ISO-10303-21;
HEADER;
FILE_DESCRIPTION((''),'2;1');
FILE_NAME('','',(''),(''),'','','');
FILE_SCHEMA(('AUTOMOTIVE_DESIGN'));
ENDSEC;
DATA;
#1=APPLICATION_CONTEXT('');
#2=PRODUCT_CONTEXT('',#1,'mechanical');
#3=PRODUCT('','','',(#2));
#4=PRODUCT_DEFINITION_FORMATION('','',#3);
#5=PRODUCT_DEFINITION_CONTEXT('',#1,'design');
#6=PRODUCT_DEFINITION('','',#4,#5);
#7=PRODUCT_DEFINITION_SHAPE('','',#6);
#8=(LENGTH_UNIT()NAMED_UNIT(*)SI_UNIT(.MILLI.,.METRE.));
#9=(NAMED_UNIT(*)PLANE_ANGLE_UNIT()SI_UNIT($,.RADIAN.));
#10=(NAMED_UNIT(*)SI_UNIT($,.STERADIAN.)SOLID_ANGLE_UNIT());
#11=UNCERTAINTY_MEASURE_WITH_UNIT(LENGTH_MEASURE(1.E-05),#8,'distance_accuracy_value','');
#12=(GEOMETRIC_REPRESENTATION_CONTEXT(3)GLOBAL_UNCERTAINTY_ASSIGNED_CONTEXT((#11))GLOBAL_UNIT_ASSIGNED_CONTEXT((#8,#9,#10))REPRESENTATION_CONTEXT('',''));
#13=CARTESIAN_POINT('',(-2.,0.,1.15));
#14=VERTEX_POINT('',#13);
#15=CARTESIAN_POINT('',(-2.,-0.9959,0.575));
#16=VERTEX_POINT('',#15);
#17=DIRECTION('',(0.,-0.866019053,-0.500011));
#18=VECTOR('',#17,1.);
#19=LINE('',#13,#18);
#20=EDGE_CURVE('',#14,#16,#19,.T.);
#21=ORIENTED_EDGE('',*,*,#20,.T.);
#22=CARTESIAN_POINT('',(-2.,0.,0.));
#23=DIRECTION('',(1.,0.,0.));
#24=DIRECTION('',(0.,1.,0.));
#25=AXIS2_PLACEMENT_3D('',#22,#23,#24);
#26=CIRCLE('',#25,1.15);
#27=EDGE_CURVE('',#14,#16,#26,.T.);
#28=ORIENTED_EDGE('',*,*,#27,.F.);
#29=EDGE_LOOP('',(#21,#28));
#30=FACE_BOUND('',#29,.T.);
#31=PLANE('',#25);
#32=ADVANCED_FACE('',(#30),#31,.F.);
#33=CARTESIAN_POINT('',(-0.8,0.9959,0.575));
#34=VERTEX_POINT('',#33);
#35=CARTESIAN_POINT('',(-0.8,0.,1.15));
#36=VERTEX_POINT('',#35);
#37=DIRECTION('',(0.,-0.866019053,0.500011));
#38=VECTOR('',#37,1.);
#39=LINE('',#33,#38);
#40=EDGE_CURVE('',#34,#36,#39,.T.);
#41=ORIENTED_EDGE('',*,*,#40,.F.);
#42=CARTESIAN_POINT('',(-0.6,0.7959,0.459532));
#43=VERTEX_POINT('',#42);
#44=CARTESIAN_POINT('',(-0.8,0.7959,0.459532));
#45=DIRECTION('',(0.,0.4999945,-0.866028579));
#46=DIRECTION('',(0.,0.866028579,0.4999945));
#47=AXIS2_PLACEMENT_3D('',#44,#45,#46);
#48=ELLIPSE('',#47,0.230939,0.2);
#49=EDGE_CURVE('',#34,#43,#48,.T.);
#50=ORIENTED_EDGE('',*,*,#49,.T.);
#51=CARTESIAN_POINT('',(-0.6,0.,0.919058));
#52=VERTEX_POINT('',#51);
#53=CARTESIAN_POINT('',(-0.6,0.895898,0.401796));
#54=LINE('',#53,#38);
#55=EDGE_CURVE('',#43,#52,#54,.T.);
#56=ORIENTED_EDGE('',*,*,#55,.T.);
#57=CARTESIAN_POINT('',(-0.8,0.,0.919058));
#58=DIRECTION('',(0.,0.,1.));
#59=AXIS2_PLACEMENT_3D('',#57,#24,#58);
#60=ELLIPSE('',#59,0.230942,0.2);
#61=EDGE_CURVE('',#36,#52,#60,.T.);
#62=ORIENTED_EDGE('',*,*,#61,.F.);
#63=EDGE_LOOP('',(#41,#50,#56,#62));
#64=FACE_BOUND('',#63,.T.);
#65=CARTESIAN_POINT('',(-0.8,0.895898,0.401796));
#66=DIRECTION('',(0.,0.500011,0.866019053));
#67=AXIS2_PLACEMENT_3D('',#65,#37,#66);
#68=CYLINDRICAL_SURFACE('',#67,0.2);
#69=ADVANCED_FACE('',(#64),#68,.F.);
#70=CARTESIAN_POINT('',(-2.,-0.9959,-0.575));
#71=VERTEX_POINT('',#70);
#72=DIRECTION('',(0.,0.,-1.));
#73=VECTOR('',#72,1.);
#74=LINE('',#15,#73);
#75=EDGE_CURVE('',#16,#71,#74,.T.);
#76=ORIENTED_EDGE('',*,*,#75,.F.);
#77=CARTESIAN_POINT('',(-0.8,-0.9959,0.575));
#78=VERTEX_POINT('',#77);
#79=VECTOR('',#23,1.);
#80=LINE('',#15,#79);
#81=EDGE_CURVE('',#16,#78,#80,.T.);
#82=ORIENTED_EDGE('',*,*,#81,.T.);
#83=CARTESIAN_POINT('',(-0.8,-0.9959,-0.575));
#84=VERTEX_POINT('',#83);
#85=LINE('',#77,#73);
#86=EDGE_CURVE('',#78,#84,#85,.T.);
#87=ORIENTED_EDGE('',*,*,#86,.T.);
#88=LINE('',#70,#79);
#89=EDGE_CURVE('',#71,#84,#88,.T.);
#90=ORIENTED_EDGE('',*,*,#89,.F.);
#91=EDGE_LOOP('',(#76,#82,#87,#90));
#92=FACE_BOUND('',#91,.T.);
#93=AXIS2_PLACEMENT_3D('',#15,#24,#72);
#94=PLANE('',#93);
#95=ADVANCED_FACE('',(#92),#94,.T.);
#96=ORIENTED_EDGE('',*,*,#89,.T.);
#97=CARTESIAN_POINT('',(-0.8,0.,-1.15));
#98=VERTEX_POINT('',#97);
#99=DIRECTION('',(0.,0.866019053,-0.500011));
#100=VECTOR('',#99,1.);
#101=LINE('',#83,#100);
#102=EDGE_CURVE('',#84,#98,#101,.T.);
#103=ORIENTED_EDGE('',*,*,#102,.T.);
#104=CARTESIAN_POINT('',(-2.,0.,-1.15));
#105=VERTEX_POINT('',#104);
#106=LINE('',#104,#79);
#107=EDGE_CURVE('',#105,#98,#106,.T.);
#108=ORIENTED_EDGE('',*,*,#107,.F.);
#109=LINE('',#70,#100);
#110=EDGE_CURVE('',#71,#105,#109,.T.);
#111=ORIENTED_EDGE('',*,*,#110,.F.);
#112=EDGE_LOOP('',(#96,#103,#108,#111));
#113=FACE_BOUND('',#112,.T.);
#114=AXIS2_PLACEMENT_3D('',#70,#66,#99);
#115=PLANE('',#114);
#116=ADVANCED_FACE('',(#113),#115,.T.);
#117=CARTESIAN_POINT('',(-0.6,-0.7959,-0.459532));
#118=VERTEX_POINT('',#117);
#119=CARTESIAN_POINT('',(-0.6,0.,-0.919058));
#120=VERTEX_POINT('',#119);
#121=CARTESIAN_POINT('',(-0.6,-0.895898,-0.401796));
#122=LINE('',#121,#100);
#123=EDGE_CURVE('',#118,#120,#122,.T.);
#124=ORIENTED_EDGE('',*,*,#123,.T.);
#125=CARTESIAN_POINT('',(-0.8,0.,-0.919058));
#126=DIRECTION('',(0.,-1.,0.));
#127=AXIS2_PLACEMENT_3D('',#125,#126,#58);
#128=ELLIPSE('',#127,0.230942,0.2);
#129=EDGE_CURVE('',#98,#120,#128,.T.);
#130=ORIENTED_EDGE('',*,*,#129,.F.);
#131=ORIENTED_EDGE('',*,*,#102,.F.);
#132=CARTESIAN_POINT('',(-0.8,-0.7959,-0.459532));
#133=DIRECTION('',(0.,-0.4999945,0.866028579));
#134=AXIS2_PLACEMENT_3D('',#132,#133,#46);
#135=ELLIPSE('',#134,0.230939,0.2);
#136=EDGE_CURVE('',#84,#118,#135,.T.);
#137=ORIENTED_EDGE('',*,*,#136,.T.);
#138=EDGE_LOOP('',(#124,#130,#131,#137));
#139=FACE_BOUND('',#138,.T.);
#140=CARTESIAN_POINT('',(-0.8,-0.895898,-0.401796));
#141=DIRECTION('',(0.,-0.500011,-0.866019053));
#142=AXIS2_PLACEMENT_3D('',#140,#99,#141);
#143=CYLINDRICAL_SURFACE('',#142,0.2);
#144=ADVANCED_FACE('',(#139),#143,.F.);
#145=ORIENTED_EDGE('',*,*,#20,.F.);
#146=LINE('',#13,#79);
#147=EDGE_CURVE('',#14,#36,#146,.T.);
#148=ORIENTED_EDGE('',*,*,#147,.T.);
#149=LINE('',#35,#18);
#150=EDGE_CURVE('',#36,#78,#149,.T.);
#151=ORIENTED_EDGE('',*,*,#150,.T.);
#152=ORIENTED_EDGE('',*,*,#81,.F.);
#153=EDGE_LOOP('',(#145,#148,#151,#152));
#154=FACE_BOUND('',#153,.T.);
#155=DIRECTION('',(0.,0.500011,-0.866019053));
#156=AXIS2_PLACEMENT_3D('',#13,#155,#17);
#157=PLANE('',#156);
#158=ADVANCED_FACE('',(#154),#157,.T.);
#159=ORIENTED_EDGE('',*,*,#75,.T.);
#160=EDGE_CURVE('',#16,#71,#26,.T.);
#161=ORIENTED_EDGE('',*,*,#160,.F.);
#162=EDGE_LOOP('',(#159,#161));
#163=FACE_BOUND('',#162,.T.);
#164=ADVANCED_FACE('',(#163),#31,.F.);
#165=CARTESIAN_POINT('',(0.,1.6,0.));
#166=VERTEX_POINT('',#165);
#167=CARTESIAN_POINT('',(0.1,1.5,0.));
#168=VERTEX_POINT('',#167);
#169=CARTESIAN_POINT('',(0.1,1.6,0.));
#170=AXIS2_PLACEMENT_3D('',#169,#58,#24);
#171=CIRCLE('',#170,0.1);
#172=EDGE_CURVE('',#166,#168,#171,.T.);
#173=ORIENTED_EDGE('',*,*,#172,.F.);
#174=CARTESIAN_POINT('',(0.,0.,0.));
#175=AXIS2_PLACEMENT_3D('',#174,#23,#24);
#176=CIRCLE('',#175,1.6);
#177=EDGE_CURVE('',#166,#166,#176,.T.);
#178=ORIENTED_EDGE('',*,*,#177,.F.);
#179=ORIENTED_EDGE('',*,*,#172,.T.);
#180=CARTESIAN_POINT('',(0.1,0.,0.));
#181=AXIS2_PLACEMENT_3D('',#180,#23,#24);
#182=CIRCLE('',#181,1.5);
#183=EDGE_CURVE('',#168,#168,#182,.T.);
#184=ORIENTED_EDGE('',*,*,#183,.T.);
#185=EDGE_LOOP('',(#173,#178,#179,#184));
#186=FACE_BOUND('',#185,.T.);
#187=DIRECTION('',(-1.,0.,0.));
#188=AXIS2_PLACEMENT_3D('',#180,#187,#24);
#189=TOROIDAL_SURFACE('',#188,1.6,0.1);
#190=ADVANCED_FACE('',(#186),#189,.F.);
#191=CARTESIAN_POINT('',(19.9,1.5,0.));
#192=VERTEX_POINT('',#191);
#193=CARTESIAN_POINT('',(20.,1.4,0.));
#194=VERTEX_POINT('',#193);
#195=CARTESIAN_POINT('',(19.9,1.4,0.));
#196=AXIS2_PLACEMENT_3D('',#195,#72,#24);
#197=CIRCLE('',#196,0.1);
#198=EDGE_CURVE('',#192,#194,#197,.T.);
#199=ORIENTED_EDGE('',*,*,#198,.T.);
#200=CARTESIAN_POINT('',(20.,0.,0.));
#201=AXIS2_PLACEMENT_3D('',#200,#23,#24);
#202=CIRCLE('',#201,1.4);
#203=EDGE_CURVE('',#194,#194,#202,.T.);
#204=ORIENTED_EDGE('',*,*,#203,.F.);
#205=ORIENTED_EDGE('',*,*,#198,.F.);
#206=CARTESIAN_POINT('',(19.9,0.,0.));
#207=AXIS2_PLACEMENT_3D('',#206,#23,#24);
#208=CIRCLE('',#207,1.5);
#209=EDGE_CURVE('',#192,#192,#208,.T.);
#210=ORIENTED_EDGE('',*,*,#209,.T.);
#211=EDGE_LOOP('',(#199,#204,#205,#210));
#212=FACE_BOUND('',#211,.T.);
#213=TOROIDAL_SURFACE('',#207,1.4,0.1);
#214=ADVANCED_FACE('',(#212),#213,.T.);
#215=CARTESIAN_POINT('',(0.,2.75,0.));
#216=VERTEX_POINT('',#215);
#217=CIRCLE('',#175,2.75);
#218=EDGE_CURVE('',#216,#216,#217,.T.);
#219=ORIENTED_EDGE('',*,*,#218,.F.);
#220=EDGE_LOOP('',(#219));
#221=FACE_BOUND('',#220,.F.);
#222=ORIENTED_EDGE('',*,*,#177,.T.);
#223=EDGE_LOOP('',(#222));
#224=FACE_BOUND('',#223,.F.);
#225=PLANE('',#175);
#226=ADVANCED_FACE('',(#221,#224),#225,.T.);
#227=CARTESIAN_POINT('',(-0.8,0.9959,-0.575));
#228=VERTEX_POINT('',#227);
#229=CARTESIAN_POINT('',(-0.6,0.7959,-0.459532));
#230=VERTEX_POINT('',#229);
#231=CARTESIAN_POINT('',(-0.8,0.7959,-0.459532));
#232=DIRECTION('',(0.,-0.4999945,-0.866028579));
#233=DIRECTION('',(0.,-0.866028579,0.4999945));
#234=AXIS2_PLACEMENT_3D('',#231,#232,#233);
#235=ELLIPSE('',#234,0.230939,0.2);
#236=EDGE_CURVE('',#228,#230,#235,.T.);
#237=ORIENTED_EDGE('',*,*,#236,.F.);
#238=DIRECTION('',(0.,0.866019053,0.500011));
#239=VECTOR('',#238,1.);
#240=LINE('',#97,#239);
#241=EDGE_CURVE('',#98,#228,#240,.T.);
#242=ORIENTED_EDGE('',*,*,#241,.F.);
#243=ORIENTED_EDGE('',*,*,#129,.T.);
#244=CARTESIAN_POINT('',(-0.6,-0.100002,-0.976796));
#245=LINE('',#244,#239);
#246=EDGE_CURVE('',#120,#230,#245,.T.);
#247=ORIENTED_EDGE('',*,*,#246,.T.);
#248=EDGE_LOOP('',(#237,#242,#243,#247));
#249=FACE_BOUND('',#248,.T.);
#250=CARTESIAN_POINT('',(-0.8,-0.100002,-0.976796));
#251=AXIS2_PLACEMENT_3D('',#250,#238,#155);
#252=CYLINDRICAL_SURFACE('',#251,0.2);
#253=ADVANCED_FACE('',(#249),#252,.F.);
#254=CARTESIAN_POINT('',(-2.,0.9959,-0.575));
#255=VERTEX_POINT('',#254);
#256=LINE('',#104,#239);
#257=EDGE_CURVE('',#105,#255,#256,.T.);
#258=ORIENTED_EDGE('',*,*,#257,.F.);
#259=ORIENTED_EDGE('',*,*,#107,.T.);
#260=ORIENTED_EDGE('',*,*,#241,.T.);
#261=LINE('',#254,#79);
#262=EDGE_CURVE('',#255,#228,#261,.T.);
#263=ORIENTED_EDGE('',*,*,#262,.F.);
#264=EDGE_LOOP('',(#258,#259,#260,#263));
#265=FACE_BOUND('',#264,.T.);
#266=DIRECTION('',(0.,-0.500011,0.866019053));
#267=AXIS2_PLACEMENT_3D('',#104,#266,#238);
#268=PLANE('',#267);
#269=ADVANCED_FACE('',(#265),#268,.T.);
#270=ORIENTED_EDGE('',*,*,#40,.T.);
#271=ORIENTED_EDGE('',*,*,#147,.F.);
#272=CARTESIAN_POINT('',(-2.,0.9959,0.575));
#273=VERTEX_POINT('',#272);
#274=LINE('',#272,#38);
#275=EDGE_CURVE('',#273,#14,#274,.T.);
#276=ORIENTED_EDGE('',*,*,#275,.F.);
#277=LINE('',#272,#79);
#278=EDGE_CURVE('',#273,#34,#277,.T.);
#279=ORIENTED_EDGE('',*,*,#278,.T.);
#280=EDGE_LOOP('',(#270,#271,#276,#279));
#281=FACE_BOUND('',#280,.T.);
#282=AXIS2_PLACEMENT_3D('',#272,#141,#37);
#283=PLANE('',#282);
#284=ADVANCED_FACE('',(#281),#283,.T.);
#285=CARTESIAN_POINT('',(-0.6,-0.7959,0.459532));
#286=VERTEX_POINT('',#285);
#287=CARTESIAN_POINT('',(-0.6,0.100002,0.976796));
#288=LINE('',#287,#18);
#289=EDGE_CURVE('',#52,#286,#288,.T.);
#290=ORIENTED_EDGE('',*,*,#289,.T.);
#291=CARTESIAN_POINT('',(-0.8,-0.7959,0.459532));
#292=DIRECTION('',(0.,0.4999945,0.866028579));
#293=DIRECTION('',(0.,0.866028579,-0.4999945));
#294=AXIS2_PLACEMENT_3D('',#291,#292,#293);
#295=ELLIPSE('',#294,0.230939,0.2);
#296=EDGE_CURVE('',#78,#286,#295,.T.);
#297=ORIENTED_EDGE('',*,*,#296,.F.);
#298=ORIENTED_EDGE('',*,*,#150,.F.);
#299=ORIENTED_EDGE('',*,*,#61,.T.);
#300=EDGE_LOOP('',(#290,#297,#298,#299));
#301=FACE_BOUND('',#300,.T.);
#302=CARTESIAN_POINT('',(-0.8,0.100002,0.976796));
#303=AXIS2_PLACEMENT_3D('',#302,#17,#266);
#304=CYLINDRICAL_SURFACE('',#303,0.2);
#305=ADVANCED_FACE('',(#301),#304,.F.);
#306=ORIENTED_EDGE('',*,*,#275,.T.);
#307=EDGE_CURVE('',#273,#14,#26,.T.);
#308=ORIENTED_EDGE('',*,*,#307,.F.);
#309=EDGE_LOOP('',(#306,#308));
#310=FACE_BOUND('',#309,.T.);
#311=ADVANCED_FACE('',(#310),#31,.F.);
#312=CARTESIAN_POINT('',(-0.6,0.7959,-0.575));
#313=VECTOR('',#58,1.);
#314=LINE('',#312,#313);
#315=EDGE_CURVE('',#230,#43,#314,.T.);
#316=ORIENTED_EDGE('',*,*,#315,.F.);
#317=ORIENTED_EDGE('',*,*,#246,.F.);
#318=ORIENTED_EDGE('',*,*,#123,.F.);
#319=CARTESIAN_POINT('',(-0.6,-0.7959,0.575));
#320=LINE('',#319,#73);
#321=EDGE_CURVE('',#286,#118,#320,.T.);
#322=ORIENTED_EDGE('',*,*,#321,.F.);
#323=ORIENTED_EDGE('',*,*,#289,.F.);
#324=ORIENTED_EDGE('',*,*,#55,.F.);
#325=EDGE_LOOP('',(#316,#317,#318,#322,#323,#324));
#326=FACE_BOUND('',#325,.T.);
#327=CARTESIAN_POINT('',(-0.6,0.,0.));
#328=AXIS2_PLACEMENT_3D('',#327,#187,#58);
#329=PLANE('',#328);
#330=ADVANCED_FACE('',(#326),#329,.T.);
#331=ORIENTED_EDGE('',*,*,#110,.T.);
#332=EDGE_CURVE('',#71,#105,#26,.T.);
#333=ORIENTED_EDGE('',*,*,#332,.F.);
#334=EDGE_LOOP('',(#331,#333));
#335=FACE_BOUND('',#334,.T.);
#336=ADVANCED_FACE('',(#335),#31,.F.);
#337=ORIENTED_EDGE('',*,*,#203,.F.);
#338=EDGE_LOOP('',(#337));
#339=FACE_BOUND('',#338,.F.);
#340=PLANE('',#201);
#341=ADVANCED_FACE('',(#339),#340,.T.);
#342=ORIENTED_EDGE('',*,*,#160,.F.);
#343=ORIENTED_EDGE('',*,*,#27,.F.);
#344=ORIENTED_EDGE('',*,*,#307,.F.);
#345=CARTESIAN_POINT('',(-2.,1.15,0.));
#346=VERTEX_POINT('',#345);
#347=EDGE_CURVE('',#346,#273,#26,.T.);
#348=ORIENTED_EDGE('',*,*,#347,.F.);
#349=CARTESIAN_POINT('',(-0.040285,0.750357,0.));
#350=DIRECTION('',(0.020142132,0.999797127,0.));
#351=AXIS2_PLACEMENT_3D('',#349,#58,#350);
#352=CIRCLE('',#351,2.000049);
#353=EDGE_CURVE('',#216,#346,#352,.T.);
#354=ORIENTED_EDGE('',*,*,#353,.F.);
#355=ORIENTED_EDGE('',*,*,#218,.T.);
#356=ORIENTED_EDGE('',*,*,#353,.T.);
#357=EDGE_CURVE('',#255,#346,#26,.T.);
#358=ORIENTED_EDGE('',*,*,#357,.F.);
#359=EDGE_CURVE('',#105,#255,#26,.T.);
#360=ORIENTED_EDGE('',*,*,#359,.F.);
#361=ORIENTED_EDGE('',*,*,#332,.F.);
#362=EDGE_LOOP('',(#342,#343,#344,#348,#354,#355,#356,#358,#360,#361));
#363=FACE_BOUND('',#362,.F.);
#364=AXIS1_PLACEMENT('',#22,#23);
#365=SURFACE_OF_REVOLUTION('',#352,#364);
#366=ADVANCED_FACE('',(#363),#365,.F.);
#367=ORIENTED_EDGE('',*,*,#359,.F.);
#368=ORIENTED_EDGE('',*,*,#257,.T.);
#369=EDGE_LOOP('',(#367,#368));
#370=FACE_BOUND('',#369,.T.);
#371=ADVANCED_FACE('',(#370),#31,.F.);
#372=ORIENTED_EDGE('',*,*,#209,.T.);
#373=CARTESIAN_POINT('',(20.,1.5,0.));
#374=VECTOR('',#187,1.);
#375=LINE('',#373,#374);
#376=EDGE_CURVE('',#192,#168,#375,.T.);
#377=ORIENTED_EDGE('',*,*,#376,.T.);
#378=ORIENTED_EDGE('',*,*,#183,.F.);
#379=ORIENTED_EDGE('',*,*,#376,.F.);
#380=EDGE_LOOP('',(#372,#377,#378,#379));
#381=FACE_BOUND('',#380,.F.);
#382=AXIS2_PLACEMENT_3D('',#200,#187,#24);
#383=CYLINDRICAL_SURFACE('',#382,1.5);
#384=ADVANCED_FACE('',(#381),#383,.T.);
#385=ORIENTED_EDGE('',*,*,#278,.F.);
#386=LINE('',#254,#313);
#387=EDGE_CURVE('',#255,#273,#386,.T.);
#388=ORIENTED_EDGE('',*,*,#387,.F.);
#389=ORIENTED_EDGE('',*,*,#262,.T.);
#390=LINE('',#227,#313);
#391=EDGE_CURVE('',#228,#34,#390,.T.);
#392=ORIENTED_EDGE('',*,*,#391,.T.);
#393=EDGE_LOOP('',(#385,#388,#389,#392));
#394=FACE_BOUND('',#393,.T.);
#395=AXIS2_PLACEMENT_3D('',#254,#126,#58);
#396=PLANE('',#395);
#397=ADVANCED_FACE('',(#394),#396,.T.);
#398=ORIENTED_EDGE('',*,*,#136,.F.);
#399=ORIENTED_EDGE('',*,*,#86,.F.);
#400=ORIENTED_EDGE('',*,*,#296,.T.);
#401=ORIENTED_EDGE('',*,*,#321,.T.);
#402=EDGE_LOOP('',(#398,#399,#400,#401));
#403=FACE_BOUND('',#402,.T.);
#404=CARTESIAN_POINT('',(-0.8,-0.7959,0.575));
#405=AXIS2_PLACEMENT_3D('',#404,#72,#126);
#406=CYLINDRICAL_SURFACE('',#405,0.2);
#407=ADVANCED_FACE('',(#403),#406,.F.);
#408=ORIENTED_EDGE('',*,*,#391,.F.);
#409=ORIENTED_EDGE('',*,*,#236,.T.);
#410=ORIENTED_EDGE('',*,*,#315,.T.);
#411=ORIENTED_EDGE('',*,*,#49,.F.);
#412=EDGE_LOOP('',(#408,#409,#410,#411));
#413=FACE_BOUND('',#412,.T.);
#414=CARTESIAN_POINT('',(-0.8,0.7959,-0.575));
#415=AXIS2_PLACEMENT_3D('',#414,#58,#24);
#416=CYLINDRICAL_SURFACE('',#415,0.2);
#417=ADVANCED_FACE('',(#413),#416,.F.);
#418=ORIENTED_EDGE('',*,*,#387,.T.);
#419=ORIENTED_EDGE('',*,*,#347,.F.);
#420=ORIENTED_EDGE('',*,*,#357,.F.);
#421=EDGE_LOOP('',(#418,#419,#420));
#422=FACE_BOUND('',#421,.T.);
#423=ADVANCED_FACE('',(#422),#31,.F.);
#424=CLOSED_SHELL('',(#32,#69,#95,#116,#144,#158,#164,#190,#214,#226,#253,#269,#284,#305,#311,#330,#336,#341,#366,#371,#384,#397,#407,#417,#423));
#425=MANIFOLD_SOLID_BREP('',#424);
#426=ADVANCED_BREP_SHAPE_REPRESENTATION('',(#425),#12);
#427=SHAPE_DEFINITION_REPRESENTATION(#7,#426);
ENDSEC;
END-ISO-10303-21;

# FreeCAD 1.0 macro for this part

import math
import FreeCAD as App
import Part
import Sketcher
Q = App.Units.Quantity


def edges_at(feature, points):
    """Names of the edges that pass closest to the given points."""
    edges = feature.Shape.Edges
    near = lambda p: min(range(len(edges)), key=lambda i: edges[i].distToShape(Part.Vertex(*p))[0])
    return sorted({f"Edge{near(p) + 1}" for p in points})

doc = App.newDocument("Part")
body = doc.addObject("PartDesign::Body", "Body")

# Sketch on XY plane
sketch1 = doc.addObject("Sketcher::SketchObject", "Sketch")
body.addObject(sketch1)
sketch1.AttachmentSupport = (doc.XY_Plane, [""])
sketch1.MapMode = "FlatFace"
sketch1.addGeometry([
    Part.LineSegment(App.Vector(20, 1.5, 0), App.Vector(0, 1.5, 0)),  # 0
    Part.LineSegment(App.Vector(0, 1.5, 0), App.Vector(0, 2.8, 0)),  # 1
    Part.ArcOfCircle(Part.Circle(App.Vector(0, 0.8, 0), App.Vector(0, 0, 1), 2), math.radians(89), math.radians(168)),  # 2
    Part.LineSegment(App.Vector(-2, 1.1, 0), App.Vector(-2, 0, 0)),  # 3
    Part.LineSegment(App.Vector(-2, 0, 0), App.Vector(20, 0, 0)),  # 4
    Part.LineSegment(App.Vector(20, 0, 0), App.Vector(20, 1.5, 0)),  # 5
], False)
sketch1.addConstraint([
    Sketcher.Constraint("Coincident", 0, 2, 1, 1),
    Sketcher.Constraint("Coincident", 1, 2, 2, 1),
    Sketcher.Constraint("Coincident", 2, 2, 3, 1),
    Sketcher.Constraint("Coincident", 3, 2, 4, 1),
    Sketcher.Constraint("Coincident", 4, 2, 5, 1),
    Sketcher.Constraint("Coincident", 5, 2, 0, 1),
    Sketcher.Constraint("Horizontal", 0),
    Sketcher.Constraint("Vertical", 1),
    Sketcher.Constraint("Vertical", 3),
    Sketcher.Constraint("Horizontal", 4),
    Sketcher.Constraint("Vertical", 5),
    Sketcher.Constraint("PointOnObject", 0, 2, -2),
    Sketcher.Constraint("PointOnObject", 3, 2, -1),
    Sketcher.Constraint("Radius", 2, Q("2 mm")),
    Sketcher.Constraint("DistanceX", 0, 2, 0, 1, Q("20 mm")),
    Sketcher.Constraint("DistanceY", 5, 1, 5, 2, Q("1.5 mm")),
    Sketcher.Constraint("DistanceX", 2, 2, -1, 1, Q("2 mm")),
    Sketcher.Constraint("DistanceY", 3, 2, 3, 1, Q("1.15 mm")),
    Sketcher.Constraint("DistanceY", -1, 1, 1, 2, Q("2.75 mm")),
])
revolution = doc.addObject("PartDesign::Revolution", "Revolution")
body.addObject(revolution)
revolution.Profile = sketch1
revolution.ReferenceAxis = (sketch1, ["H_Axis"])
revolution.Angle = 360

# Sketch on YZ plane
sketch2 = doc.addObject("Sketcher::SketchObject", "Sketch001")
body.addObject(sketch2)
sketch2.AttachmentSupport = (doc.YZ_Plane, [""])
sketch2.MapMode = "FlatFace"
sketch2.AttachmentOffset = App.Placement(App.Vector(0, 0, -2), App.Rotation())
sketch2.addGeometry([
    Part.LineSegment(App.Vector(-1, 0.6, 0), App.Vector(0, 1.1, 0)),  # 0
    Part.LineSegment(App.Vector(0, 1.1, 0), App.Vector(1, 0.6, 0)),  # 1
    Part.LineSegment(App.Vector(1, 0.6, 0), App.Vector(1, -0.6, 0)),  # 2
    Part.LineSegment(App.Vector(1, -0.6, 0), App.Vector(0, -1.1, 0)),  # 3
    Part.LineSegment(App.Vector(0, -1.1, 0), App.Vector(-1, -0.6, 0)),  # 4
    Part.LineSegment(App.Vector(-1, -0.6, 0), App.Vector(-1, 0.6, 0)),  # 5
], False)
sketch2.addConstraint([
    Sketcher.Constraint("Coincident", 0, 2, 1, 1),
    Sketcher.Constraint("Coincident", 1, 2, 2, 1),
    Sketcher.Constraint("Coincident", 2, 2, 3, 1),
    Sketcher.Constraint("Coincident", 3, 2, 4, 1),
    Sketcher.Constraint("Coincident", 4, 2, 5, 1),
    Sketcher.Constraint("Coincident", 5, 2, 0, 1),
    Sketcher.Constraint("Vertical", 2),
    Sketcher.Constraint("Vertical", 5),
    Sketcher.Constraint("Symmetric", 0, 2, 3, 2, -1, 1),
    Sketcher.Constraint("Symmetric", 1, 2, 4, 2, -1, 1),
    Sketcher.Constraint("PointOnObject", 0, 2, -2),
    Sketcher.Constraint("Parallel", 0, 3),
    Sketcher.Constraint("Horizontal", 2, 2, 4, 2),
    Sketcher.Constraint("DistanceY", 2, 2, 2, 1, Q("1.15 mm")),
    Sketcher.Constraint("Distance", 0, Q("1.15 mm")),
    Sketcher.Constraint("DistanceY", -1, 1, 0, 2, Q("1.15 mm")),
])
pocket1 = doc.addObject("PartDesign::Pocket", "Pocket")
body.addObject(pocket1)
pocket1.Profile = sketch2
pocket1.Length = 1.4
pocket1.Reversed = True
doc.recompute()

fillet = doc.addObject("PartDesign::Fillet", "Fillet")
body.addObject(fillet)
fillet.Base = (pocket1, edges_at(pocket1, [
    (-0.6, 0.996, 0),
    (-0.6, 0.498, 0.863),
    (-0.6, 0.498, -0.863),
    (-0.6, -0.498, -0.863),
    (-0.6, -0.996, 0),
    (-0.6, -0.498, 0.863),
]))
fillet.Radius = 0.2
doc.recompute()

fillet2 = doc.addObject("PartDesign::Fillet", "Fillet001")
body.addObject(fillet2)
fillet2.Base = (fillet, edges_at(fillet, [(0, -1.5, 0)]))
fillet2.Radius = 0.1
doc.recompute()

fillet3 = doc.addObject("PartDesign::Fillet", "Fillet002")
body.addObject(fillet3)
fillet3.Base = (fillet2, edges_at(fillet2, [(20, -1.5, 0)]))
fillet3.Radius = 0.1

doc.recompute()
